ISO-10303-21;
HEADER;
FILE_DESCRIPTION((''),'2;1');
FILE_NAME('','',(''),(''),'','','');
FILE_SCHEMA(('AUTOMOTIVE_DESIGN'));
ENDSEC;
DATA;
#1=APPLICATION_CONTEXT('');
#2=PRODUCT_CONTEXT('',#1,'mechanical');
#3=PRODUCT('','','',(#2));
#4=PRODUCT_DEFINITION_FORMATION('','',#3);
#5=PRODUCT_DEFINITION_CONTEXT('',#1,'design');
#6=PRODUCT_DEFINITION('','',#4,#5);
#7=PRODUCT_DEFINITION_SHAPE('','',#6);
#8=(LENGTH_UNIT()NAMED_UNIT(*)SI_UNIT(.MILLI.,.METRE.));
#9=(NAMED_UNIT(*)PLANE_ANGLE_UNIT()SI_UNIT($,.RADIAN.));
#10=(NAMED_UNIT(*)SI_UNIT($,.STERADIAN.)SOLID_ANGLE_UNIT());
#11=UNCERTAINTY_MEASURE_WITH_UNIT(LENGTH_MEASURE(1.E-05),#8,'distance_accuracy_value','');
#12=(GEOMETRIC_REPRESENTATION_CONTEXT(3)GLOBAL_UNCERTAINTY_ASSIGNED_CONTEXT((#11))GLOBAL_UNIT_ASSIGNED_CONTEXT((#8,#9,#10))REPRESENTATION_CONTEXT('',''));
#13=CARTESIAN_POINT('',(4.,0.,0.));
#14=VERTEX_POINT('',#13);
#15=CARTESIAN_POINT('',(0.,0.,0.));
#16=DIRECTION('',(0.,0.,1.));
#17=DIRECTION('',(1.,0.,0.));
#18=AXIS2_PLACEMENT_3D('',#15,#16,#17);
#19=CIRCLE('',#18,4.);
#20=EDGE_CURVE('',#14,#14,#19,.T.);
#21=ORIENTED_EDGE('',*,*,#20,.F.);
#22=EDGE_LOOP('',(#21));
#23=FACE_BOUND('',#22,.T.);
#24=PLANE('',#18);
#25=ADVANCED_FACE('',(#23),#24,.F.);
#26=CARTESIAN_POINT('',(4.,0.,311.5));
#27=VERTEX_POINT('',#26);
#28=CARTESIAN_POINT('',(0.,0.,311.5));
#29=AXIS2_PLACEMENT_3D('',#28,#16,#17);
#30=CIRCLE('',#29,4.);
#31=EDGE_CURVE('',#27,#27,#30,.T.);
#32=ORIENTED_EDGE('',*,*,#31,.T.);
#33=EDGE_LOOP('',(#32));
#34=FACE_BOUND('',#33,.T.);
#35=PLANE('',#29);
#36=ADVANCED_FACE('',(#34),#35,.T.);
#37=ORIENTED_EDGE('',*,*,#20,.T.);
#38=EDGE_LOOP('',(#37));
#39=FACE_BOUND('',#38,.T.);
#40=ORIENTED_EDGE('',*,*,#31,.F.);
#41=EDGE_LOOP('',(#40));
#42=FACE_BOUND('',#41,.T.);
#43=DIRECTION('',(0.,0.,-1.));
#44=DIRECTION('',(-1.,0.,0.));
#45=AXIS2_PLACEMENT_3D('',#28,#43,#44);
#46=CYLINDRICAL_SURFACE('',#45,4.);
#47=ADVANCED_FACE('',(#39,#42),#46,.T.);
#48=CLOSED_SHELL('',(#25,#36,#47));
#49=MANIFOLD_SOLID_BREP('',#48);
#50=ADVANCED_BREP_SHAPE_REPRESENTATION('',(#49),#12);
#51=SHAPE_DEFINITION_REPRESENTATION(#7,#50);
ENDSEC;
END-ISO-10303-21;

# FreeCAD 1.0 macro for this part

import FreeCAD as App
import Part
import Sketcher
from FreeCAD import Vector
Q = App.Units.Quantity

doc = App.newDocument("Part")
body = doc.addObject("PartDesign::Body", "Body")

# Sketch on XY plane
sketch1 = doc.addObject("Sketcher::SketchObject", "Sketch")
body.addObject(sketch1)
sketch1.AttachmentSupport = (doc.XY_Plane, [""])
sketch1.MapMode = "FlatFace"
sketch1.addGeometry(Part.Circle(Vector(0, 0, 0), Vector(0, 0, 1), 4), False)
sketch1.addConstraint([
    Sketcher.Constraint("Coincident", 0, 3, -1, 1),
    Sketcher.Constraint("Diameter", 0, Q("8 mm")),
])
pad1 = doc.addObject("PartDesign::Pad", "Pad")
body.addObject(pad1)
pad1.Profile = sketch1
pad1.Length = 311.5

doc.recompute()
